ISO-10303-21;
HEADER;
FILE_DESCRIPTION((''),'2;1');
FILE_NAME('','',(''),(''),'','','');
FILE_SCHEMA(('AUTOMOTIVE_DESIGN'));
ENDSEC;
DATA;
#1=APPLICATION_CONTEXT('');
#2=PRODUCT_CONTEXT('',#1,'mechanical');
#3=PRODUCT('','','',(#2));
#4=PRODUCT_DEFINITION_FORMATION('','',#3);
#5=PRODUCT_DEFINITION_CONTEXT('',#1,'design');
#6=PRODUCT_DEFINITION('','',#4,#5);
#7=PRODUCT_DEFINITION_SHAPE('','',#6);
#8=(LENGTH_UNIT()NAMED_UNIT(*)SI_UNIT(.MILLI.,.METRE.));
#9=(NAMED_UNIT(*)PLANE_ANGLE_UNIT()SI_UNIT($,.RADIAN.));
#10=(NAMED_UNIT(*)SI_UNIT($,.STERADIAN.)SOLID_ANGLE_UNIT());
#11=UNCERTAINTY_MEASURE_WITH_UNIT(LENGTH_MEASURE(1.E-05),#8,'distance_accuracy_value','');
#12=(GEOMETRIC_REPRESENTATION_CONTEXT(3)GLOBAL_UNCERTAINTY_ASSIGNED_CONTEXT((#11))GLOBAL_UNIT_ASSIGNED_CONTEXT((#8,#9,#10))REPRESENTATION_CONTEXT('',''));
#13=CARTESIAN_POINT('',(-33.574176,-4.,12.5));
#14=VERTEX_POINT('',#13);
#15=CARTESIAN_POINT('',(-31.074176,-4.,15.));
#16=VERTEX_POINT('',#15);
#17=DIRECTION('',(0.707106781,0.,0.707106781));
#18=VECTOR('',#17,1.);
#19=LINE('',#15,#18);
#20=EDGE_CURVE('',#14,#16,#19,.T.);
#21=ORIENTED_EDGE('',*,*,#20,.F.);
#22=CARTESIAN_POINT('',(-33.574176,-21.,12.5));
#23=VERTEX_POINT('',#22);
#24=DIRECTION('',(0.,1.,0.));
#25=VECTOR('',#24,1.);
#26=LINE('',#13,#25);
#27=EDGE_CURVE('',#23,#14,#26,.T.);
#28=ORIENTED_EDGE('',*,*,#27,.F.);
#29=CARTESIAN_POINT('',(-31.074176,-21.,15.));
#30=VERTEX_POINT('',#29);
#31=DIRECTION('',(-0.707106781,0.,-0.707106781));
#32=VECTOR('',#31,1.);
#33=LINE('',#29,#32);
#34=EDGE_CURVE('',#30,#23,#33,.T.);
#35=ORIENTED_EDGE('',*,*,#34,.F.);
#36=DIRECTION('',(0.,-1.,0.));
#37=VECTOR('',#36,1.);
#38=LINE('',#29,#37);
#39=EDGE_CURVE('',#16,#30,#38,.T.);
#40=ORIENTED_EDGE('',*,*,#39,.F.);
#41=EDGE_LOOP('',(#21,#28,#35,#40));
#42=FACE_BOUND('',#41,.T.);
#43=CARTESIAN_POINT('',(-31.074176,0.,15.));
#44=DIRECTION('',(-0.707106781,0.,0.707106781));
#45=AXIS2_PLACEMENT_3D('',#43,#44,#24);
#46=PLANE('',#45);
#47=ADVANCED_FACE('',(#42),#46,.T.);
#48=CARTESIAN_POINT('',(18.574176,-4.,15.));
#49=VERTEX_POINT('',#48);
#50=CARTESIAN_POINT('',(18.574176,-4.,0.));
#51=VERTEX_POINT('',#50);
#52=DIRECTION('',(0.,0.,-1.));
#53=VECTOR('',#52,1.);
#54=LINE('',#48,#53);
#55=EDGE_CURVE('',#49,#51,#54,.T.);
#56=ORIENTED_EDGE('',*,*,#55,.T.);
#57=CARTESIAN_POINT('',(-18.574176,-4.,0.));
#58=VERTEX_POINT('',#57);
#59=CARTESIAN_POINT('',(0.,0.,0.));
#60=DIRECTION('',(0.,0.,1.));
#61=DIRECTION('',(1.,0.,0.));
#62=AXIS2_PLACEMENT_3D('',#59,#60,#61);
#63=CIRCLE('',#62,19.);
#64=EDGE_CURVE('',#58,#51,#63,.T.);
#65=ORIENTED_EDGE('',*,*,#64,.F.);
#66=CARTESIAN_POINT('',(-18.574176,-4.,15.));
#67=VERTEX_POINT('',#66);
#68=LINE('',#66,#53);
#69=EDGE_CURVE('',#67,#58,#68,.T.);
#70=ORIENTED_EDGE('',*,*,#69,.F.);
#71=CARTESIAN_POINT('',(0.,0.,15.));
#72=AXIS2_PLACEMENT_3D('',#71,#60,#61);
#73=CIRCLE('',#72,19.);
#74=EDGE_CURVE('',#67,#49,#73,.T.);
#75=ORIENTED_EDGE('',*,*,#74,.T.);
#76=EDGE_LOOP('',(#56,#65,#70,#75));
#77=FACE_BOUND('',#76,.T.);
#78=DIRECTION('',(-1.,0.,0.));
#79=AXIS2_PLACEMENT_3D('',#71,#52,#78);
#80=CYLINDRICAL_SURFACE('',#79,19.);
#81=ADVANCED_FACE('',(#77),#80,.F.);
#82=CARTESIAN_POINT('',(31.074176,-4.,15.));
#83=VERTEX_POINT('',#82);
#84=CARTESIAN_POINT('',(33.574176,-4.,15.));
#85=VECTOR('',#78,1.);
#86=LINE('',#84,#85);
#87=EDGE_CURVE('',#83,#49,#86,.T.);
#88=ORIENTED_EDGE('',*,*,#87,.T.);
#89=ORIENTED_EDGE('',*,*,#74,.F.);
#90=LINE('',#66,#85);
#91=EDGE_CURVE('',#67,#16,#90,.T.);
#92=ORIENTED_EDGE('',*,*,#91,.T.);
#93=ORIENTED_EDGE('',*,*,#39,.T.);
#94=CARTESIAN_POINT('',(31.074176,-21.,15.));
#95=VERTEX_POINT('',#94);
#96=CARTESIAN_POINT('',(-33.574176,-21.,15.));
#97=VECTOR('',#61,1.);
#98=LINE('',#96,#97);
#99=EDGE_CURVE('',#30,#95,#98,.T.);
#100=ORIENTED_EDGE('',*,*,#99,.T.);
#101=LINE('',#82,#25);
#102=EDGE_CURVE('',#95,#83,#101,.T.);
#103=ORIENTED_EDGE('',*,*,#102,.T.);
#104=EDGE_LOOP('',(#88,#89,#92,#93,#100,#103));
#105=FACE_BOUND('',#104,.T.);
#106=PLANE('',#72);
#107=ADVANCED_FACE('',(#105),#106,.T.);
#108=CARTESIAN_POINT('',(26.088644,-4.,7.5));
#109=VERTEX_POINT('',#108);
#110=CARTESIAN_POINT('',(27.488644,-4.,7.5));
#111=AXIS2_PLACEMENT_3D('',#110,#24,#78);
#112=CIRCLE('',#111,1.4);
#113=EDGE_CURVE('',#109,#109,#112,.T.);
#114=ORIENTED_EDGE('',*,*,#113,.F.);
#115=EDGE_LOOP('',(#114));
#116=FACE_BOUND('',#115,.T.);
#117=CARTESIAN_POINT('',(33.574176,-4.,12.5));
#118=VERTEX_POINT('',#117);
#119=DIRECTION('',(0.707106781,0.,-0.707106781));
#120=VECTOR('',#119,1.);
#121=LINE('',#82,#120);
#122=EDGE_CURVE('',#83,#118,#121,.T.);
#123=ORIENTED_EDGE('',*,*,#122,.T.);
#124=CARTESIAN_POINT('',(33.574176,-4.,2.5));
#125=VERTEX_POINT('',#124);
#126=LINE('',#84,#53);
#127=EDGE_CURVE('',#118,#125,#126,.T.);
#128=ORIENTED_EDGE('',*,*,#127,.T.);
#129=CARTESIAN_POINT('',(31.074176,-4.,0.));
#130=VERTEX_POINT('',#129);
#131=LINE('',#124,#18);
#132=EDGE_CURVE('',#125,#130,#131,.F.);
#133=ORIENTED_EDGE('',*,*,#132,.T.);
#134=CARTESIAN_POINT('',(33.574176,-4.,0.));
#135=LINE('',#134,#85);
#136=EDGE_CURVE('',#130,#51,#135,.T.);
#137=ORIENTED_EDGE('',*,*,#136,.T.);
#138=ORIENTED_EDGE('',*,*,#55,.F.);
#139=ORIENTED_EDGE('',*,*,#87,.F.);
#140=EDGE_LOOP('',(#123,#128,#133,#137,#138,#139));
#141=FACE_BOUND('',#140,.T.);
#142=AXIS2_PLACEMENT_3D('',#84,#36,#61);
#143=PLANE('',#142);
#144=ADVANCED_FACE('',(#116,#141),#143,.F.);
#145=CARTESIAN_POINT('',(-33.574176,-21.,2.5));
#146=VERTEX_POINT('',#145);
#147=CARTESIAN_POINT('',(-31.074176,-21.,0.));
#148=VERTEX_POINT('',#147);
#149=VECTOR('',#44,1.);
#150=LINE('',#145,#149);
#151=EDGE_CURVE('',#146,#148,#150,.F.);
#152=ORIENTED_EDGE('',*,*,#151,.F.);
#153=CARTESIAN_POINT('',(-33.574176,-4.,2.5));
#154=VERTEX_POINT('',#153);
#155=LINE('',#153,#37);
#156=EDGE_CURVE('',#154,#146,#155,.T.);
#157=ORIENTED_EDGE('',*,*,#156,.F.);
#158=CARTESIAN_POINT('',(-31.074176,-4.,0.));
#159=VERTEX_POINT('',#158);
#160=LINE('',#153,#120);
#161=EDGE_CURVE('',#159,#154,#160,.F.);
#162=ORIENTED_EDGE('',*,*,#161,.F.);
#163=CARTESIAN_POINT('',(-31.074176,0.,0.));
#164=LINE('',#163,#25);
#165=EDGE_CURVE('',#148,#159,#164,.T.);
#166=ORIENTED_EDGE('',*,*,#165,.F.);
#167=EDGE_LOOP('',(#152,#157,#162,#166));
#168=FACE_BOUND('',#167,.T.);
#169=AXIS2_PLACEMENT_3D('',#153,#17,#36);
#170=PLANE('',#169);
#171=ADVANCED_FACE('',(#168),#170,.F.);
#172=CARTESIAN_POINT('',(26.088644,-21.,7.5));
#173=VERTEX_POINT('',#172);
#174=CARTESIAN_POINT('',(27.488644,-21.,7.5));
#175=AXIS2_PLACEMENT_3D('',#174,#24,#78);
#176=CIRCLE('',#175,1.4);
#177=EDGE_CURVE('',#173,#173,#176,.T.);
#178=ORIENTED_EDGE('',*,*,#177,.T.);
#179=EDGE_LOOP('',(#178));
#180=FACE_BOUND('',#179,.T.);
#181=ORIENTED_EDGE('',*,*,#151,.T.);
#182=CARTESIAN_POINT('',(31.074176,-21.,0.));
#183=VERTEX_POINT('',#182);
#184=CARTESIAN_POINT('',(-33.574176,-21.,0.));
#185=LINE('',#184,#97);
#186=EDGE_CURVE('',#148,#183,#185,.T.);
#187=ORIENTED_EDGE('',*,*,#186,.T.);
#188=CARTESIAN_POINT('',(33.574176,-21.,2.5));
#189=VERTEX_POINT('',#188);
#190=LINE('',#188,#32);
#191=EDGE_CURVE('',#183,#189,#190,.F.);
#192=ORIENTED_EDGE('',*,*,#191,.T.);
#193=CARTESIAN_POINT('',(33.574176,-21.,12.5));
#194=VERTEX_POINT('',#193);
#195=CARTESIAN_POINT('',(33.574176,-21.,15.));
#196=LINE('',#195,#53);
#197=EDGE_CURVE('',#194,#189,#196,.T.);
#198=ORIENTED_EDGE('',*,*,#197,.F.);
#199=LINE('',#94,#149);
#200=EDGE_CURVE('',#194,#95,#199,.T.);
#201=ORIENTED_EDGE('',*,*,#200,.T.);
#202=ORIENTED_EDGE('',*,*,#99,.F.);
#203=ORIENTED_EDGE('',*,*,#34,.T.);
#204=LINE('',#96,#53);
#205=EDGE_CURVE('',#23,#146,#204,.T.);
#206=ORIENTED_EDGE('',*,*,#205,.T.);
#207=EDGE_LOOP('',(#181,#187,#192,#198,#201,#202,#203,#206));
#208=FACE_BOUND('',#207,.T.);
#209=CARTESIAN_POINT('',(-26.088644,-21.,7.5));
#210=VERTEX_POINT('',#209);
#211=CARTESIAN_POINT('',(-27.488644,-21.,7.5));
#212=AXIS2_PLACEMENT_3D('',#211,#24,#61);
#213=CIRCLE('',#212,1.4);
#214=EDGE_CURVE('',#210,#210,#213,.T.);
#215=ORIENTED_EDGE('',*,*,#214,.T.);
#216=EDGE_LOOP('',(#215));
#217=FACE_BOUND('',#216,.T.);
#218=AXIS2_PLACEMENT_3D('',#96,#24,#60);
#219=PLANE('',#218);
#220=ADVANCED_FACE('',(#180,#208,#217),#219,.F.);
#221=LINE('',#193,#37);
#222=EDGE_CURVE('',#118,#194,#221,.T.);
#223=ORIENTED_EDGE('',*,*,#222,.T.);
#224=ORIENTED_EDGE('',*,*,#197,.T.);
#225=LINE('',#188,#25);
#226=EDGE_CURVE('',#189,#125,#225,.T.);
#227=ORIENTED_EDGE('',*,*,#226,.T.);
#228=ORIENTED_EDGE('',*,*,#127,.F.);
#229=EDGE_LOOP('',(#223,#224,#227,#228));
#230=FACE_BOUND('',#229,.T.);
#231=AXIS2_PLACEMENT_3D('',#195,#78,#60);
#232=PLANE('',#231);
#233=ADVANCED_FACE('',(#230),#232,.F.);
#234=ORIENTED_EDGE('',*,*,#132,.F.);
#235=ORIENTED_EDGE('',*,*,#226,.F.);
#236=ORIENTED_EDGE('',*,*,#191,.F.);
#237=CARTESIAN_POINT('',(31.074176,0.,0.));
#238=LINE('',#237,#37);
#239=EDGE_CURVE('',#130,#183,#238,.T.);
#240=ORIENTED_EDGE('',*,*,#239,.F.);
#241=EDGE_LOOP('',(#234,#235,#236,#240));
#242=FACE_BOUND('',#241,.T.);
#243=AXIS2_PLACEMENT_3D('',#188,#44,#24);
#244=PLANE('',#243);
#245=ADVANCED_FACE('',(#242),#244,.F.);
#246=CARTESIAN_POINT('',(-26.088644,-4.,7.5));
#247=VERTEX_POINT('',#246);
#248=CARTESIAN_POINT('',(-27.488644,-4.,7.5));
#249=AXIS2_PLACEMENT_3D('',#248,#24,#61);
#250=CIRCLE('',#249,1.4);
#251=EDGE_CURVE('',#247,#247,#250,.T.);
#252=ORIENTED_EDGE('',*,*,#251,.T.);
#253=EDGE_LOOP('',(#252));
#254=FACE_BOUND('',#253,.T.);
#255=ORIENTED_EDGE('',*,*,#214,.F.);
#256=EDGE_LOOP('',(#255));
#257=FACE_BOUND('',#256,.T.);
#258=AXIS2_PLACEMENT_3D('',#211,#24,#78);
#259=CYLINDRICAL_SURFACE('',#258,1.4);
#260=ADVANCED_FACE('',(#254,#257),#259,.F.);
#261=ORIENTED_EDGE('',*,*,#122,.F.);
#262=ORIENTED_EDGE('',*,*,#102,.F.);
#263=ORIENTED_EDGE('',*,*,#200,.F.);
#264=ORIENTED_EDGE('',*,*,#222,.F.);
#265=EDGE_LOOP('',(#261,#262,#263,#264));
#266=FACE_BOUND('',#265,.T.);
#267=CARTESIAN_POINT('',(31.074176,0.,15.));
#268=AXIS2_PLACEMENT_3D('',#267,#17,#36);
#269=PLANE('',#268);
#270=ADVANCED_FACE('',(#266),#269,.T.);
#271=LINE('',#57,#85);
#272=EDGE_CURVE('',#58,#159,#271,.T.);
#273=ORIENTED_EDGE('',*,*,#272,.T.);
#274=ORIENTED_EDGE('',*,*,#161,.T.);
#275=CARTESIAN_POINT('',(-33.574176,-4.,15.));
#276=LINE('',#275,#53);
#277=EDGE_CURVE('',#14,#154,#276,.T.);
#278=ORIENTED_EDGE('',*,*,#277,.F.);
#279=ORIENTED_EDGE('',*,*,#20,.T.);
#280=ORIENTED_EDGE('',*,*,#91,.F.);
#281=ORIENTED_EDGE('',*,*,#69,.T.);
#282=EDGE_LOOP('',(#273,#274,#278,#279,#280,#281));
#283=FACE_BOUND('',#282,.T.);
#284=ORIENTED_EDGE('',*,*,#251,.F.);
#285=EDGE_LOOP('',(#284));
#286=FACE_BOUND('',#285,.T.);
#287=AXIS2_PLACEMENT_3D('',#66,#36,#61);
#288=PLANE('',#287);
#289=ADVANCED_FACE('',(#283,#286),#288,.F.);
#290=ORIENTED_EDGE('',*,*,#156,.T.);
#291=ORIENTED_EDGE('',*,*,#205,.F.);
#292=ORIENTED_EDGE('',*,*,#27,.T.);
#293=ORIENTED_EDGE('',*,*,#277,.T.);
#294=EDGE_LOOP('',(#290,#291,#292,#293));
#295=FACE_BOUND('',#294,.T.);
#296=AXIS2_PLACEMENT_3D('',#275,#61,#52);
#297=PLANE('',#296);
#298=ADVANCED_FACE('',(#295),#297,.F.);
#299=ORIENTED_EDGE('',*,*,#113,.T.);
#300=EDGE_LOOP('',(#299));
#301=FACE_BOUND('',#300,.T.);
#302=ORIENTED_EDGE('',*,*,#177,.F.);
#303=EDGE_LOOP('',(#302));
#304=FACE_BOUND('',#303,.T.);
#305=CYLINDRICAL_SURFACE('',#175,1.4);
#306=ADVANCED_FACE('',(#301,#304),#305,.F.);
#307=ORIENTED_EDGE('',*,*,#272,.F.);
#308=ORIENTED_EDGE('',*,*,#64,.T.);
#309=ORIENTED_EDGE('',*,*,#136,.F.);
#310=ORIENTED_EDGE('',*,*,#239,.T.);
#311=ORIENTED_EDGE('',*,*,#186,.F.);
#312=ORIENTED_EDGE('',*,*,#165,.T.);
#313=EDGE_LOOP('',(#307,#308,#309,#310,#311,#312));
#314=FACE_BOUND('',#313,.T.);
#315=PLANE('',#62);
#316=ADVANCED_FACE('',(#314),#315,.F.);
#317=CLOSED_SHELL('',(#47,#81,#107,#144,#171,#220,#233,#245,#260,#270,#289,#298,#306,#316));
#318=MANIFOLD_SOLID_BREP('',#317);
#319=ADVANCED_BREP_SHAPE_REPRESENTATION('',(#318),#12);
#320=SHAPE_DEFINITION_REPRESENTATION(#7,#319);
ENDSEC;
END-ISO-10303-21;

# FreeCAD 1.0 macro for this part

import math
import FreeCAD as App
import Part
import Sketcher
from FreeCAD import Vector
Q = App.Units.Quantity


def edges_at(feature, points):
    """Names of the edges that pass closest to the given points."""
    edges = feature.Shape.Edges
    near = lambda p: min(range(len(edges)), key=lambda i: edges[i].distToShape(Part.Vertex(*p))[0])
    return sorted({f"Edge{near(p) + 1}" for p in points})

doc = App.newDocument("Part")
body = doc.addObject("PartDesign::Body", "Body")

sketch1 = doc.addObject("Sketcher::SketchObject", "Sketch")
body.addObject(sketch1)
sketch1.AttachmentSupport = (doc.XY_Plane, [""])
sketch1.MapMode = "FlatFace"
sketch1.addGeometry([
    Part.LineSegment(Vector(-18.574176, -4, 0), Vector(-33.574176, -4, 0)),
    Part.LineSegment(Vector(-33.574176, -4, 0), Vector(-33.574176, -21, 0)),
    Part.LineSegment(Vector(-33.574176, -21, 0), Vector(33.574176, -21, 0)),
    Part.LineSegment(Vector(33.574176, -21, 0), Vector(33.574176, -4, 0)),
    Part.LineSegment(Vector(33.574176, -4, 0), Vector(18.574176, -4, 0)),
    Part.ArcOfCircle(Part.Circle(Vector(0, 0, 0), Vector(0, 0, 1), 19), math.radians(-167.846803), math.radians(-12.153197)),
], False)
sketch1.addConstraint([
    Sketcher.Constraint("Coincident", 0, 2, 1, 1),
    Sketcher.Constraint("Coincident", 1, 2, 2, 1),
    Sketcher.Constraint("Coincident", 2, 2, 3, 1),
    Sketcher.Constraint("Coincident", 3, 2, 4, 1),
    Sketcher.Constraint("Coincident", 4, 2, 5, 2),
    Sketcher.Constraint("Coincident", 5, 1, 0, 1),
    Sketcher.Constraint("Horizontal", 0),
    Sketcher.Constraint("Vertical", 1),
    Sketcher.Constraint("Horizontal", 2),
    Sketcher.Constraint("Vertical", 3),
    Sketcher.Constraint("Horizontal", 4),
    Sketcher.Constraint("Coincident", 5, 3, -1, 1),
    Sketcher.Constraint("Symmetric", 0, 2, 3, 2, -2),
    Sketcher.Constraint("Radius", 5, Q("19 mm")),
    Sketcher.Constraint("DistanceX", 0, 2, 0, 1, Q("15 mm")),
    Sketcher.Constraint("DistanceY", 1, 2, 1, 1, Q("17 mm")),
    Sketcher.Constraint("DistanceY", 0, 2, -1, 1, Q("4 mm")),
])
pad1 = doc.addObject("PartDesign::Pad", "Pad")
body.addObject(pad1)
pad1.Profile = sketch1
pad1.Length = 15
doc.recompute()

chamfer = doc.addObject("PartDesign::Chamfer", "Chamfer")
body.addObject(chamfer)
chamfer.Base = (pad1, edges_at(pad1, [
    (-33.574, -12.5, 15),
    (33.574, -12.5, 15),
    (-33.574, -12.5, 0),
    (33.574, -12.5, 0),
]))
chamfer.Size = 2.5

sketch2 = doc.addObject("Sketcher::SketchObject", "Sketch001")
body.addObject(sketch2)
sketch2.AttachmentSupport = (doc.XZ_Plane, [""])
sketch2.MapMode = "FlatFace"
sketch2.AttachmentOffset = App.Placement(Vector(0, 0, 4), App.Rotation())
sketch2.addGeometry([
    Part.Circle(Vector(27.488644, 7.5, 0), Vector(0, 0, 1), 1.4),
    Part.Circle(Vector(-27.488644, 7.5, 0), Vector(0, 0, 1), 1.4),
], False)
sketch2.addConstraint([
    Sketcher.Constraint("Equal", 0, 1),
    Sketcher.Constraint("Symmetric", 0, 3, 1, 3, -2),
    Sketcher.Constraint("Diameter", 0, Q("2.8 mm")),
    Sketcher.Constraint("DistanceY", -1, 1, 0, 3, Q("7.5 mm")),
    Sketcher.Constraint("DistanceX", 1, 3, 0, 3, Q("54.977289 mm")),
])
pocket1 = doc.addObject("PartDesign::Pocket", "Pocket")
body.addObject(pocket1)
pocket1.Profile = sketch2
pocket1.Type = "ThroughAll"
pocket1.Reversed = True

doc.recompute()
